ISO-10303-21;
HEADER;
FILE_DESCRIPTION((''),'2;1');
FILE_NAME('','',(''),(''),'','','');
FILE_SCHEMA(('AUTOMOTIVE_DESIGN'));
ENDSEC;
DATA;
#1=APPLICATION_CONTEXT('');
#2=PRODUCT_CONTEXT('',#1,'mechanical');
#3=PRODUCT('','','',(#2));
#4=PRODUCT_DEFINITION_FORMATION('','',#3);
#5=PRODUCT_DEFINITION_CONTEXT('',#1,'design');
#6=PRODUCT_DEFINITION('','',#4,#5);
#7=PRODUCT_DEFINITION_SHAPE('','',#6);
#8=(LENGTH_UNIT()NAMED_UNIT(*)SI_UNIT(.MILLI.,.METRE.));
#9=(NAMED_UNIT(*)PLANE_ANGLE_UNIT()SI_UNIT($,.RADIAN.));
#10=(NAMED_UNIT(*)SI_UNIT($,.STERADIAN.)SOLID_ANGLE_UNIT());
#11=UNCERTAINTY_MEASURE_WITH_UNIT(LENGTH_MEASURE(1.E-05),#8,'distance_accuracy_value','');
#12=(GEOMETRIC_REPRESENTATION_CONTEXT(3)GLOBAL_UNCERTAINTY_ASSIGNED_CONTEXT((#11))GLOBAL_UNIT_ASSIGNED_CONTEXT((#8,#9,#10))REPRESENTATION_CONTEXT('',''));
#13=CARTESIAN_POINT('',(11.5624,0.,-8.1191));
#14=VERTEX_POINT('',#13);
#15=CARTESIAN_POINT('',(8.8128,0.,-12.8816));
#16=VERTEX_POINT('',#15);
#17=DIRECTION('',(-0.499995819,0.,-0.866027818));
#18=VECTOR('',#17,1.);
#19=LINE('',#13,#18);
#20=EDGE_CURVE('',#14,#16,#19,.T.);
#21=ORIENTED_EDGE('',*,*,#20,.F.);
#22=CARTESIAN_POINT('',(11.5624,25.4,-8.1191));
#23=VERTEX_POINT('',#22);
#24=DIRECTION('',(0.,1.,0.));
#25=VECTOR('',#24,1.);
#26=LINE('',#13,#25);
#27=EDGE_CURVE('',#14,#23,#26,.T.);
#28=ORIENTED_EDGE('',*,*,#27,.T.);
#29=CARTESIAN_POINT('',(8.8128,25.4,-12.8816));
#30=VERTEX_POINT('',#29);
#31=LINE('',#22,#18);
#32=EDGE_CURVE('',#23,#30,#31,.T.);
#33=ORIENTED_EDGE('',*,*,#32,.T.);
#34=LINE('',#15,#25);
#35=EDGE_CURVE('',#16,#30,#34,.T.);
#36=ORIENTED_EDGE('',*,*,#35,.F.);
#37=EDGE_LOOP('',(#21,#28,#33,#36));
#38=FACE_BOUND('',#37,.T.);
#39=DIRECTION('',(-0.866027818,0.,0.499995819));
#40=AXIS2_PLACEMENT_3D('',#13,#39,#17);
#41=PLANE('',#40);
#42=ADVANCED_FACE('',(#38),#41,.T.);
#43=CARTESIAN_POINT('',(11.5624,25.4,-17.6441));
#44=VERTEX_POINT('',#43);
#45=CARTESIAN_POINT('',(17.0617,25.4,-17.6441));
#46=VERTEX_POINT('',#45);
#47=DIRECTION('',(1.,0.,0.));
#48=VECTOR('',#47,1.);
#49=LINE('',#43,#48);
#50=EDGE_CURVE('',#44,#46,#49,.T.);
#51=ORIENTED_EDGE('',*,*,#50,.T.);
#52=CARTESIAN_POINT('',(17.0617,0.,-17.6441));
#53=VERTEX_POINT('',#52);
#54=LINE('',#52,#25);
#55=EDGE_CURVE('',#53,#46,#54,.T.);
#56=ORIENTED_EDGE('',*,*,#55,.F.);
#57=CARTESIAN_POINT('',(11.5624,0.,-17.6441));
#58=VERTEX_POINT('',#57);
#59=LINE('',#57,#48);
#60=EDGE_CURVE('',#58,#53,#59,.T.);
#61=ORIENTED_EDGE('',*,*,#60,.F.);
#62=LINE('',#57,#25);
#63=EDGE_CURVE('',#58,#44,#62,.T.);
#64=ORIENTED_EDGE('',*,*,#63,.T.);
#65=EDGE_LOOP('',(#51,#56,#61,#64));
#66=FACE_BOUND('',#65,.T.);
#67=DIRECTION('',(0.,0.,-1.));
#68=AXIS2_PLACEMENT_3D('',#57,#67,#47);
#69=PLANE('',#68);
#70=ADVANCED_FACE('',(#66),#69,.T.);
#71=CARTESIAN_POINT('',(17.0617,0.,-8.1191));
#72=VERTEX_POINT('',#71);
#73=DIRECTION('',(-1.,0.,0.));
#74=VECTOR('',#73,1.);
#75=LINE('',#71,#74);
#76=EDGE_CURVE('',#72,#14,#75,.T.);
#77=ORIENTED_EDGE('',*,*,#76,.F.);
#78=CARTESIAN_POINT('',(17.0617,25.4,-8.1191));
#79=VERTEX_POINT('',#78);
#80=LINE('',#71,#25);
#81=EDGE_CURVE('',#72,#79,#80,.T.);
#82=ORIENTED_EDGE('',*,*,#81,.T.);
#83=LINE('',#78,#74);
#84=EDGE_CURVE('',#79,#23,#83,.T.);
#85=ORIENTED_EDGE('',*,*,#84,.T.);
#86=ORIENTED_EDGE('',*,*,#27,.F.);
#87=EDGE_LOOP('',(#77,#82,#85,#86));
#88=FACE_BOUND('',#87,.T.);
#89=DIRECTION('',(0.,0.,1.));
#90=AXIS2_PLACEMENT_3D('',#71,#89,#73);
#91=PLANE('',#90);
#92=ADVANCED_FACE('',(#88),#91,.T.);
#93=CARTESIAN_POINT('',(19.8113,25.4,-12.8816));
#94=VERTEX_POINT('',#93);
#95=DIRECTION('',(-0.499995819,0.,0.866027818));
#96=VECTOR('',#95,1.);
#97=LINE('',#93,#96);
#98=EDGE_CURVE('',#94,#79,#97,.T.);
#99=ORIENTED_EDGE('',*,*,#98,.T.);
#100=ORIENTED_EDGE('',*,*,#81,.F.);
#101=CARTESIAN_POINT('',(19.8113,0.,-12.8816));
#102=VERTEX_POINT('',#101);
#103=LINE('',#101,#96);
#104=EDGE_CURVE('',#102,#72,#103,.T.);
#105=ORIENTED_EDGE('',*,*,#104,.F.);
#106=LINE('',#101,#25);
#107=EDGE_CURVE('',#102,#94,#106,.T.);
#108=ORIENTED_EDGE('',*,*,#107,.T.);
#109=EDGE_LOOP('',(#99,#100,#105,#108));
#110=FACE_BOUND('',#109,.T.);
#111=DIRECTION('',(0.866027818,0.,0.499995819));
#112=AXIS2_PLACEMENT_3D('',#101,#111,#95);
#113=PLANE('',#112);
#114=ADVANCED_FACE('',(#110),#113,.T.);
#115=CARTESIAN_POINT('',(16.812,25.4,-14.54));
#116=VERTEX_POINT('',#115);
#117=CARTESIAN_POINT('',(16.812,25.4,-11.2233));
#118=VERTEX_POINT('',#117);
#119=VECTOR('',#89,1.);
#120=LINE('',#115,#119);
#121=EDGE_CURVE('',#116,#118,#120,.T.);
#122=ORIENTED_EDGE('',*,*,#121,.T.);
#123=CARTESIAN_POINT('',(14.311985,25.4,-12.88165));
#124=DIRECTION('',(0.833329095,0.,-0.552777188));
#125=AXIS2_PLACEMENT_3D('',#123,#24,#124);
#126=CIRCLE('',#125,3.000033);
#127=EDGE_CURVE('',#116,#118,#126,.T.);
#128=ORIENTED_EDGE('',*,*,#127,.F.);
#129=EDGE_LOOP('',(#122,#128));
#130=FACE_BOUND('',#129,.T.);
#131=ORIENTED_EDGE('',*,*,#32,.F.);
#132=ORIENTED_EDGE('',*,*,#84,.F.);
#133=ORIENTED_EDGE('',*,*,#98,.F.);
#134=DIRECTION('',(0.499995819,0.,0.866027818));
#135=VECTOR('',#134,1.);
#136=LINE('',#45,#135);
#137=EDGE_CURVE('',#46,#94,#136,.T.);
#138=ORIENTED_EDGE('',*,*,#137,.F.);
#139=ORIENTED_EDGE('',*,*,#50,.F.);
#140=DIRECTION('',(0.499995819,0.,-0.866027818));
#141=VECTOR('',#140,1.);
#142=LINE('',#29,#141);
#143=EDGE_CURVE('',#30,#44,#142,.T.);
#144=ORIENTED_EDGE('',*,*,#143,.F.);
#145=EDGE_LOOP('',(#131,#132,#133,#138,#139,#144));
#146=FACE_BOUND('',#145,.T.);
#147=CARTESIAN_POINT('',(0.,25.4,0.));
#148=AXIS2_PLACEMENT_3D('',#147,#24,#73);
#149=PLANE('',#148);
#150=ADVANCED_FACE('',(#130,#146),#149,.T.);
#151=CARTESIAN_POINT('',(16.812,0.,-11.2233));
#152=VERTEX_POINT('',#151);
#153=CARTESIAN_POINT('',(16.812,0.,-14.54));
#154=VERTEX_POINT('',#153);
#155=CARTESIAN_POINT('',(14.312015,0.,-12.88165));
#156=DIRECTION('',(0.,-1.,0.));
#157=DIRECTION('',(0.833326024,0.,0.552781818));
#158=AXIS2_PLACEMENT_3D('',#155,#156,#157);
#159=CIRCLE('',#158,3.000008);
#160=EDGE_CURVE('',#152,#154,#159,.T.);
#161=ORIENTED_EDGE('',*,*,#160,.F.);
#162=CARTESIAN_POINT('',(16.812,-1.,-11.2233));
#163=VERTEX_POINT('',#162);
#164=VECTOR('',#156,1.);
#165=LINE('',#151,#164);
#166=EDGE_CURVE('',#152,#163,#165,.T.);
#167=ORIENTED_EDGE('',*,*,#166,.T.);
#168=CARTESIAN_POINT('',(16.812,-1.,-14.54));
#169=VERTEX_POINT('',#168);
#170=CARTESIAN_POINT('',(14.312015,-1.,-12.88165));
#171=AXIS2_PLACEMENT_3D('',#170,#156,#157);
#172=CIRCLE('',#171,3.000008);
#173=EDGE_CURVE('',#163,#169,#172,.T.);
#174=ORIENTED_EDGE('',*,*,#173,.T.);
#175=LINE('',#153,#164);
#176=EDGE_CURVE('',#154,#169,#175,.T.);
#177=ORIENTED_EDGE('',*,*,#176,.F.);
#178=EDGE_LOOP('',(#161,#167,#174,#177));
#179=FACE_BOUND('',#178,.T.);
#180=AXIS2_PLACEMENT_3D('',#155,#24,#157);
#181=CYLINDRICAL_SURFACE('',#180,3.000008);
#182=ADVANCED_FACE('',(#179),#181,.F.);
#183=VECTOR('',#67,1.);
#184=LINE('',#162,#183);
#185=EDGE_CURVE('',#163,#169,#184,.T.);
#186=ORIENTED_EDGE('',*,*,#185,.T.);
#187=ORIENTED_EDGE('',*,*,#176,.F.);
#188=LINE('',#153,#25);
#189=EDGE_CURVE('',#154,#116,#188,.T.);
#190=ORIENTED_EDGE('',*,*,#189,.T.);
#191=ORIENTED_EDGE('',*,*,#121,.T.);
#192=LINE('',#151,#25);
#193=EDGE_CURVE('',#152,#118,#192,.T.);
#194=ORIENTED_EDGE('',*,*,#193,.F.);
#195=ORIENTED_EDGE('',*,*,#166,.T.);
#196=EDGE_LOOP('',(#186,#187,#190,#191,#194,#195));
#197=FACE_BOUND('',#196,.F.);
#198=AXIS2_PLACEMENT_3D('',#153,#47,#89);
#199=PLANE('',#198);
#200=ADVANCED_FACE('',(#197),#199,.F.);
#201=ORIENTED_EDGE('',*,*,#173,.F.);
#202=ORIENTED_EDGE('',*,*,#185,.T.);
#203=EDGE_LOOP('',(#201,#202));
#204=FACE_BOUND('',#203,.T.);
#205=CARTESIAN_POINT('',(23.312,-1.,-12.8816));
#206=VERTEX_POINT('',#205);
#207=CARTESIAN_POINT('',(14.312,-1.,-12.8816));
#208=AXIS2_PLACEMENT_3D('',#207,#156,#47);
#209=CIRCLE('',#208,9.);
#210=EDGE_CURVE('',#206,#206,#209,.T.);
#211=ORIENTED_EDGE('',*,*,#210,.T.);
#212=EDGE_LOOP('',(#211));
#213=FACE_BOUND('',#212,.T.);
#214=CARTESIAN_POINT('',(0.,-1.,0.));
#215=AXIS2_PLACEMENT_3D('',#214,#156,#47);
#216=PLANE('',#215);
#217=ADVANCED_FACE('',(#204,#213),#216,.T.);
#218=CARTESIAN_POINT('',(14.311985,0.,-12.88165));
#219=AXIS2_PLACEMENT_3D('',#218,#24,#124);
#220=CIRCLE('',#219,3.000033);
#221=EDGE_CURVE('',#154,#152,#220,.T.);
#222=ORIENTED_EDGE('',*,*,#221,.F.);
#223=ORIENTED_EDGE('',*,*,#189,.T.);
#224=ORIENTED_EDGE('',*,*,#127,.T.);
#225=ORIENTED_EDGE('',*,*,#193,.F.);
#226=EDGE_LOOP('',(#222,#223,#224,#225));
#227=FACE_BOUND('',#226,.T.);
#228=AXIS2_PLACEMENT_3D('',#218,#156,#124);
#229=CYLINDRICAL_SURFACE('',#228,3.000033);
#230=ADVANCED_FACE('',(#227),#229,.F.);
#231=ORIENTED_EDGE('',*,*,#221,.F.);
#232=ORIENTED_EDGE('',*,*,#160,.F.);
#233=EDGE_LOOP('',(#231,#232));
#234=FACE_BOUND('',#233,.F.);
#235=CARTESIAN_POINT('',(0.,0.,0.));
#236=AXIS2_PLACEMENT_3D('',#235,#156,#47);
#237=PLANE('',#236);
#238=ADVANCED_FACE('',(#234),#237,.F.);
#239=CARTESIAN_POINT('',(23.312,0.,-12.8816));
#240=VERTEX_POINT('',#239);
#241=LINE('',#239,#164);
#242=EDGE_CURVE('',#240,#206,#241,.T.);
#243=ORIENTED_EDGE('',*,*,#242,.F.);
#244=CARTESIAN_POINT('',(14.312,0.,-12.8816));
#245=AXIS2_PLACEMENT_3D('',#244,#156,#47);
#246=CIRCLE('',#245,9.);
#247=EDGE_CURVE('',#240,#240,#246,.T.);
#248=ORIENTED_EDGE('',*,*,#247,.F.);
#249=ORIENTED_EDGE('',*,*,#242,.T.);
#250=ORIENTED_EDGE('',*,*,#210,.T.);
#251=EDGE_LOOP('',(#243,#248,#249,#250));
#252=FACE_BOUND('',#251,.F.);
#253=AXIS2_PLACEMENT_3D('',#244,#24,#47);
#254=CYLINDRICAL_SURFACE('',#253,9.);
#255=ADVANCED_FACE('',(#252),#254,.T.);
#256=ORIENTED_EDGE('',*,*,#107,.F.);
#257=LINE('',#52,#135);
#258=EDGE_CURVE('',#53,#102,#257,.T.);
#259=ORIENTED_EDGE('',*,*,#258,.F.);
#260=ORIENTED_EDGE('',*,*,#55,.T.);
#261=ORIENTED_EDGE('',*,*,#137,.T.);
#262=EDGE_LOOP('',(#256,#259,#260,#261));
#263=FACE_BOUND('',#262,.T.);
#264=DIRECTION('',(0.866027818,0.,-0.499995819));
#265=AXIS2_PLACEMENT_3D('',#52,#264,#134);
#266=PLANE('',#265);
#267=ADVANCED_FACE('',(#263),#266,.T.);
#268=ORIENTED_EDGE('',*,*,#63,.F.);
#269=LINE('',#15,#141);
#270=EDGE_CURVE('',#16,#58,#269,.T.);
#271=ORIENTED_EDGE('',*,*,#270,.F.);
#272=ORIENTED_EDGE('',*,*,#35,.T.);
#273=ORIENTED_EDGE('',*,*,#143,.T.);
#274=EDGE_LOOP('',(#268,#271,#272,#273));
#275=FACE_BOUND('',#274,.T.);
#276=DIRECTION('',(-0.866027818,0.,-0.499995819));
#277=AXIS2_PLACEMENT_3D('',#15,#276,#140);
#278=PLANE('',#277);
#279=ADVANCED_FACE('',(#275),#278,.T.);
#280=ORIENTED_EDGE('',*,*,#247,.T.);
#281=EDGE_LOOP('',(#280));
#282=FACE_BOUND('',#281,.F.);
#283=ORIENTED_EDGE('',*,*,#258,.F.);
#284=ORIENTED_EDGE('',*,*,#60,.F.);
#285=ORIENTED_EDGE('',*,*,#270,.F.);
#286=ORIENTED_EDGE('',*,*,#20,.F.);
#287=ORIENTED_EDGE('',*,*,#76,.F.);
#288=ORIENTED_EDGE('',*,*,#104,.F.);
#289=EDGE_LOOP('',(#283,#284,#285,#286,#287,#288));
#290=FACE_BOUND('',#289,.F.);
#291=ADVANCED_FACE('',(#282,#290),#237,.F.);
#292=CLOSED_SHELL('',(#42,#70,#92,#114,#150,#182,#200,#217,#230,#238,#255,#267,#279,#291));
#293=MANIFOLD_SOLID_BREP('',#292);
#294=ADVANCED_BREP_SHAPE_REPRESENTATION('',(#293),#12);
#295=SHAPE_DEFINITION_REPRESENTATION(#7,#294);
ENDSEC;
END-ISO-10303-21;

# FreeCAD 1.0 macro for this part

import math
import FreeCAD as App
import Part
import Sketcher
from FreeCAD import Vector
Q = App.Units.Quantity

doc = App.newDocument("Part")
body = doc.addObject("PartDesign::Body", "Body")

# Sketch on XZ plane
sketch1 = body.newObject("Sketcher::SketchObject", "Sketch")
sketch1.AttachmentSupport = (doc.getObject("XZ_Plane"), [""])
sketch1.MapMode = "FlatFace"
sketch1.addGeometry(Part.LineSegment(Vector(8.8, -12.9, 0), Vector(11.6, -8.1, 0)), False)
sketch1.addGeometry(Part.LineSegment(Vector(11.6, -8.1, 0), Vector(17.1, -8.1, 0)), False)
sketch1.addGeometry(Part.LineSegment(Vector(17.1, -8.1, 0), Vector(19.8, -12.9, 0)), False)
sketch1.addGeometry(Part.LineSegment(Vector(19.8, -12.9, 0), Vector(17.1, -17.6, 0)), False)
sketch1.addGeometry(Part.LineSegment(Vector(17.1, -17.6, 0), Vector(11.6, -17.6, 0)), False)
sketch1.addGeometry(Part.LineSegment(Vector(11.6, -17.6, 0), Vector(8.8, -12.9, 0)), False)
sketch1.addGeometry(Part.ArcOfCircle(Part.Circle(Vector(14.3, -12.9, 0), Vector(0, 0, 1), 3), math.radians(34), math.radians(326)), False)
sketch1.addGeometry(Part.LineSegment(Vector(16.8, -14.5, 0), Vector(16.8, -11.2, 0)), False)
sketch1.addConstraint(Sketcher.Constraint("Coincident", 0, 2, 1, 1))
sketch1.addConstraint(Sketcher.Constraint("Coincident", 1, 2, 2, 1))
sketch1.addConstraint(Sketcher.Constraint("Coincident", 2, 2, 3, 1))
sketch1.addConstraint(Sketcher.Constraint("Coincident", 3, 2, 4, 1))
sketch1.addConstraint(Sketcher.Constraint("Coincident", 4, 2, 5, 1))
sketch1.addConstraint(Sketcher.Constraint("Coincident", 5, 2, 0, 1))
sketch1.addConstraint(Sketcher.Constraint("Coincident", 6, 1, 7, 2))
sketch1.addConstraint(Sketcher.Constraint("Coincident", 7, 1, 6, 2))
sketch1.addConstraint(Sketcher.Constraint("Horizontal", 1))
sketch1.addConstraint(Sketcher.Constraint("Horizontal", 4))
sketch1.addConstraint(Sketcher.Constraint("Vertical", 7))
sketch1.addConstraint(Sketcher.Constraint("Parallel", 0, 3))
sketch1.addConstraint(Sketcher.Constraint("Parallel", 2, 5))
sketch1.addConstraint(Sketcher.Constraint("Horizontal", 6, 3, 2, 2))
sketch1.addConstraint(Sketcher.Constraint("Horizontal", 2, 2, 5, 2))
sketch1.addConstraint(Sketcher.Constraint("Vertical", 1, 2, 3, 2))
sketch1.addConstraint(Sketcher.Constraint("Vertical", 0, 2, 4, 2))
sketch1.addConstraint(Sketcher.Constraint("Radius", 6, Q("3 mm")))
sketch1.addConstraint(Sketcher.Constraint("Angle", 0, Q("60.0003 deg")))
sketch1.addConstraint(Sketcher.Constraint("DistanceY", 3, 2, 1, 2, Q("9.525 mm")))
sketch1.addConstraint(Sketcher.Constraint("DistanceX", 6, 3, 6, 1, Q("2.5 mm")))
sketch1.addConstraint(Sketcher.Constraint("DistanceY", 7, 1, -1, 1, Q("14.54 mm")))
sketch1.addConstraint(Sketcher.Constraint("DistanceX", 1, 1, 1, 2, Q("5.4993 mm")))
sketch1.addConstraint(Sketcher.Constraint("DistanceX", -1, 1, 6, 3, Q("14.312 mm")))
sketch1.addConstraint(Sketcher.Constraint("DistanceX", -1, 1, 0, 2, Q("11.5624 mm")))
pad1 = body.newObject("PartDesign::Pad", "Pad")
pad1.Profile = sketch1
pad1.Length = 25.4
pad1.Reversed = True

# Sketch on XZ plane
sketch2 = body.newObject("Sketcher::SketchObject", "Sketch001")
sketch2.AttachmentSupport = (doc.getObject("XZ_Plane"), [""])
sketch2.MapMode = "FlatFace"
sketch2.addGeometry(Part.Circle(Vector(14.3, -12.9, 0), Vector(0, 0, 1), 9), False)
sketch2.addGeometry(Part.ArcOfCircle(Part.Circle(Vector(14.3, -12.9, 0), Vector(0, 0, 1), 3), math.radians(34), math.radians(326)), False)
sketch2.addGeometry(Part.LineSegment(Vector(16.8, -11.2, 0), Vector(16.8, -14.5, 0)), False)
sketch2.addConstraint(Sketcher.Constraint("Coincident", 1, 1, 2, 1))
sketch2.addConstraint(Sketcher.Constraint("Coincident", 2, 2, 1, 2))
sketch2.addConstraint(Sketcher.Constraint("Vertical", 2))
sketch2.addConstraint(Sketcher.Constraint("Coincident", 1, 3, 0, 3))
sketch2.addConstraint(Sketcher.Constraint("Diameter", 0, Q("18 mm")))
sketch2.addConstraint(Sketcher.Constraint("Radius", 1, Q("3 mm")))
sketch2.addConstraint(Sketcher.Constraint("DistanceX", 0, 3, 1, 1, Q("2.5 mm")))
sketch2.addConstraint(Sketcher.Constraint("DistanceY", 2, 2, -1, 1, Q("14.54 mm")))
sketch2.addConstraint(Sketcher.Constraint("DistanceX", -1, 1, 0, 3, Q("14.312 mm")))
pad2 = body.newObject("PartDesign::Pad", "Pad001")
pad2.Profile = sketch2
pad2.Length = 1

doc.recompute()
